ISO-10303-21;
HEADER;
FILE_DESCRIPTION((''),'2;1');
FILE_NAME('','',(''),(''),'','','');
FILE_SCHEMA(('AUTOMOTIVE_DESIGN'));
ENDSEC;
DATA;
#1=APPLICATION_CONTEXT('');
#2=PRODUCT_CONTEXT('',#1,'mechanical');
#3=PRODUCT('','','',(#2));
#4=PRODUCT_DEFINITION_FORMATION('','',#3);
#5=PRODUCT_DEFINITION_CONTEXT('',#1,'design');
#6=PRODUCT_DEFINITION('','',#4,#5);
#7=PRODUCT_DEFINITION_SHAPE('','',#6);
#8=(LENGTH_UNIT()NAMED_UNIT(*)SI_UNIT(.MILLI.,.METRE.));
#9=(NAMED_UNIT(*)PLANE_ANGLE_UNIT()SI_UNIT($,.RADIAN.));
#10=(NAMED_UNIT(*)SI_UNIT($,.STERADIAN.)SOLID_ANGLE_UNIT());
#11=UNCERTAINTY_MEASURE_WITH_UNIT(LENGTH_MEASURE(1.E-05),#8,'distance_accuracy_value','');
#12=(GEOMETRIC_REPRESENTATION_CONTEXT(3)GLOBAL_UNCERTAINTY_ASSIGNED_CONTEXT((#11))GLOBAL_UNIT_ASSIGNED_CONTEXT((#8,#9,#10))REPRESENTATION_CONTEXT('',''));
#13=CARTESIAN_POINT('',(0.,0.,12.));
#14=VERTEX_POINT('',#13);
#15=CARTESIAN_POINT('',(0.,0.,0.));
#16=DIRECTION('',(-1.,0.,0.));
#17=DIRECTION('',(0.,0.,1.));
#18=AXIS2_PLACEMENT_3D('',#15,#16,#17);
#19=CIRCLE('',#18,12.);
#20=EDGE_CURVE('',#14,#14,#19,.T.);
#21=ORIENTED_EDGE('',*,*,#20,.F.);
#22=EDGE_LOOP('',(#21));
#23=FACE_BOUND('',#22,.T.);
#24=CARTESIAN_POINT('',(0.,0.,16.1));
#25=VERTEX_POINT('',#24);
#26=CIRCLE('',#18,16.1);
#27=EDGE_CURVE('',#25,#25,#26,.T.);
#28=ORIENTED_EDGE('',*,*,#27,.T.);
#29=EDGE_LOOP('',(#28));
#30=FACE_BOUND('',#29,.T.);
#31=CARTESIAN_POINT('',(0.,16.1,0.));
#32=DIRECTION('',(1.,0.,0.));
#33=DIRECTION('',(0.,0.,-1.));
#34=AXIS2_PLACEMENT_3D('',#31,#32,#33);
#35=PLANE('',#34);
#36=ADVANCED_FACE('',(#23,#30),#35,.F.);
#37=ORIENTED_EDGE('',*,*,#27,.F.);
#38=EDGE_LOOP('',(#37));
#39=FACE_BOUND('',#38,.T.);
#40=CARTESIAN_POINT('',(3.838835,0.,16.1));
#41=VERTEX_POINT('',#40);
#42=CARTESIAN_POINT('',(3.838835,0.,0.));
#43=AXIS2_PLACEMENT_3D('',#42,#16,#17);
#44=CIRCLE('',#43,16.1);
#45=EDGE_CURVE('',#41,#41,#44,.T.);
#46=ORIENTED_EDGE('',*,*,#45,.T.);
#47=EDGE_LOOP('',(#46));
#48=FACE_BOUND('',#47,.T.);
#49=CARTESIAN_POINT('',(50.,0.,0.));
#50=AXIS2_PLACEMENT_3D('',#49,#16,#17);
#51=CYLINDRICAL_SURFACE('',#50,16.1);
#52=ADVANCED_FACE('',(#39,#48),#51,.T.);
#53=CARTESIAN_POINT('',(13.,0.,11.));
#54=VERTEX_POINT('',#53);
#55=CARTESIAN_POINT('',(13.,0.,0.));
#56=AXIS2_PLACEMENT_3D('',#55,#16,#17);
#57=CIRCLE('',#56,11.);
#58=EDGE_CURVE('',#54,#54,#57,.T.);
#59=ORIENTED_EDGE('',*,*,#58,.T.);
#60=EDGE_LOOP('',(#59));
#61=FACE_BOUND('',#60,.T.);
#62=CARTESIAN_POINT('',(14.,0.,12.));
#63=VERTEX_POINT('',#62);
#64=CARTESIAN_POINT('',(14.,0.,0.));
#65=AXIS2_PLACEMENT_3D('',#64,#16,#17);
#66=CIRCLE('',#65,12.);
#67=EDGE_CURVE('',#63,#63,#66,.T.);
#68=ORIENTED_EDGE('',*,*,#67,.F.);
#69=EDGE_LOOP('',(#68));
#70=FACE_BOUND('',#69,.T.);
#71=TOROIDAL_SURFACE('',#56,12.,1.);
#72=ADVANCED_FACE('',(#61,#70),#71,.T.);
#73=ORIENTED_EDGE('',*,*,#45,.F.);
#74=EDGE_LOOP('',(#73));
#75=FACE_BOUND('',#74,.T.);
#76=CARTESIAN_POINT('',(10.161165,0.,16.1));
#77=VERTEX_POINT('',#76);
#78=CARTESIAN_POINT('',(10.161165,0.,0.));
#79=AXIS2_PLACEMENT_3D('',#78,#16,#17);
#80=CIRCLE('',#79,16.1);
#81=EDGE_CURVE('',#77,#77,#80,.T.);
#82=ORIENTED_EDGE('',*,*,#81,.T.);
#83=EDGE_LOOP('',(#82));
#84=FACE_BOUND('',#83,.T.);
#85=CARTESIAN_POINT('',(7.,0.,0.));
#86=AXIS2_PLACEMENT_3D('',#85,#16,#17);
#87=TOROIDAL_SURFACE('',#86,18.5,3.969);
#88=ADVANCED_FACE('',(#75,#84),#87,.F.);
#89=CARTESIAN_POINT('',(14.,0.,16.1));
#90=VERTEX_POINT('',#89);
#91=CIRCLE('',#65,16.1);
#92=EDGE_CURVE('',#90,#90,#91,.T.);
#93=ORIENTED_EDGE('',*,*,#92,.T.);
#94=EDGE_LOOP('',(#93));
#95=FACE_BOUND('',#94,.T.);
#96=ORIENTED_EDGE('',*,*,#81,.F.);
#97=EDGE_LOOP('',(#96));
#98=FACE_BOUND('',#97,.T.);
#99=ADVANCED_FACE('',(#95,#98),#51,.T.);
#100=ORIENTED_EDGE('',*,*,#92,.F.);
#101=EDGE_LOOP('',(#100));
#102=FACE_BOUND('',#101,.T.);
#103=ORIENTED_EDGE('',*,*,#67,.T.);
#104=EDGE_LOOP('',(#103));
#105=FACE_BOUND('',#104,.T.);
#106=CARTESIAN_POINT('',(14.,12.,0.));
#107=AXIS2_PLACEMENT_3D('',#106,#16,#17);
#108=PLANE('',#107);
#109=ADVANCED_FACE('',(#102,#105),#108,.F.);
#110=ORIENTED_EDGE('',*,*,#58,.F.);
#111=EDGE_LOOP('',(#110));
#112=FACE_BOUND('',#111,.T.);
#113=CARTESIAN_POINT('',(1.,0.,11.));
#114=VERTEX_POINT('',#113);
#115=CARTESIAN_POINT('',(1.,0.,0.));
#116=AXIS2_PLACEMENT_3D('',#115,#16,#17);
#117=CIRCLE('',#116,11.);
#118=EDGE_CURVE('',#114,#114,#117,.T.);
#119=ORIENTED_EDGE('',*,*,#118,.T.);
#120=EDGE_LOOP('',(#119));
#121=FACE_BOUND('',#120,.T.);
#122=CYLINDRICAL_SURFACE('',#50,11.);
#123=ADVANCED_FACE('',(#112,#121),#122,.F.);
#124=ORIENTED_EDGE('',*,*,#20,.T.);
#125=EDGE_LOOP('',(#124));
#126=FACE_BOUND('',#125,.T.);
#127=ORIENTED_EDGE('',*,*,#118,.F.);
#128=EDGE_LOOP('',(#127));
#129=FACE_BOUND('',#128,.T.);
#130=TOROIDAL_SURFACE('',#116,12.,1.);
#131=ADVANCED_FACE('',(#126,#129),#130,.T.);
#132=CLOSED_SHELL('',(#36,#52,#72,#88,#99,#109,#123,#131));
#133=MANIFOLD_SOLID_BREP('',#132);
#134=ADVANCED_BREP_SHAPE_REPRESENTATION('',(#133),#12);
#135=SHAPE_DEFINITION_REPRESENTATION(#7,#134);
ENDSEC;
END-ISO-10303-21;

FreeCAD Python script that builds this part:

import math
import FreeCAD as App
import Part
import Sketcher

V = App.Vector
Q = App.Units.Quantity

doc = App.newDocument("Part")
body = doc.addObject("PartDesign::Body", "Body")

# Sketch on XY plane
sketch1 = body.newObject("Sketcher::SketchObject", "Sketch")
sketch1.AttachmentSupport = (doc.getObject("XY_Plane"), [""])
sketch1.MapMode = "FlatFace"
sketch1.addGeometry([
    Part.LineSegment(V(1, 11, 0), V(13, 11, 0)),  # 0
    Part.ArcOfCircle(Part.Circle(V(13, 12, 0), V(0, 0, 1), 1), math.radians(-90), math.radians(0)),  # 1
    Part.LineSegment(V(14, 12, 0), V(14, 16.1, 0)),  # 2
    Part.LineSegment(V(14, 16.1, 0), V(10.161165, 16.1, 0)),  # 3
    Part.ArcOfCircle(Part.Circle(V(7, 18.5, 0), V(0, 0, 1), 3.969), math.radians(-142.793727), math.radians(-37.206273)),  # 4
    Part.LineSegment(V(3.838835, 16.1, 0), V(0, 16.1, 0)),  # 5
    Part.LineSegment(V(0, 16.1, 0), V(0, 12, 0)),  # 6
    Part.ArcOfCircle(Part.Circle(V(1, 12, 0), V(0, 0, 1), 1), math.radians(-180), math.radians(-90)),  # 7
], False)
sketch1.addConstraint([
    Sketcher.Constraint("Tangent", 0, 2, 1, 1),
    Sketcher.Constraint("Tangent", 1, 2, 2, 1),
    Sketcher.Constraint("Coincident", 2, 2, 3, 1),
    Sketcher.Constraint("Coincident", 3, 2, 4, 2),
    Sketcher.Constraint("Coincident", 4, 1, 5, 1),
    Sketcher.Constraint("Coincident", 5, 2, 6, 1),
    Sketcher.Constraint("Tangent", 6, 2, 7, 1),
    Sketcher.Constraint("Tangent", 7, 2, 0, 1),
    Sketcher.Constraint("Horizontal", 0),
    Sketcher.Constraint("Vertical", 2),
    Sketcher.Constraint("Horizontal", 3),
    Sketcher.Constraint("Horizontal", 5),
    Sketcher.Constraint("Vertical", 6),
    Sketcher.Constraint("Equal", 1, 7),
    Sketcher.Constraint("PointOnObject", 5, 2, -2),
    Sketcher.Constraint("Horizontal", 3, 2, 4, 1),
    Sketcher.Constraint("Equal", 3, 5),
    Sketcher.Constraint("Radius", 1, Q("1 mm")),
    Sketcher.Constraint("DistanceX", 0, 1, 0, 2, Q("12 mm")),
    Sketcher.Constraint("DistanceY", 2, 1, 2, 2, Q("4.1 mm")),
    Sketcher.Constraint("DistanceY", -1, 1, 1, 3, Q("12 mm")),
    Sketcher.Constraint("Radius", 4, Q("3.969 mm")),
    Sketcher.Constraint("DistanceY", -1, 1, 4, 3, Q("18.5 mm")),
])
revolution = body.newObject("PartDesign::Revolution", "Revolution")
revolution.Profile = sketch1
revolution.ReferenceAxis = (sketch1, ["H_Axis"])
revolution.Angle = 360

doc.recompute()
